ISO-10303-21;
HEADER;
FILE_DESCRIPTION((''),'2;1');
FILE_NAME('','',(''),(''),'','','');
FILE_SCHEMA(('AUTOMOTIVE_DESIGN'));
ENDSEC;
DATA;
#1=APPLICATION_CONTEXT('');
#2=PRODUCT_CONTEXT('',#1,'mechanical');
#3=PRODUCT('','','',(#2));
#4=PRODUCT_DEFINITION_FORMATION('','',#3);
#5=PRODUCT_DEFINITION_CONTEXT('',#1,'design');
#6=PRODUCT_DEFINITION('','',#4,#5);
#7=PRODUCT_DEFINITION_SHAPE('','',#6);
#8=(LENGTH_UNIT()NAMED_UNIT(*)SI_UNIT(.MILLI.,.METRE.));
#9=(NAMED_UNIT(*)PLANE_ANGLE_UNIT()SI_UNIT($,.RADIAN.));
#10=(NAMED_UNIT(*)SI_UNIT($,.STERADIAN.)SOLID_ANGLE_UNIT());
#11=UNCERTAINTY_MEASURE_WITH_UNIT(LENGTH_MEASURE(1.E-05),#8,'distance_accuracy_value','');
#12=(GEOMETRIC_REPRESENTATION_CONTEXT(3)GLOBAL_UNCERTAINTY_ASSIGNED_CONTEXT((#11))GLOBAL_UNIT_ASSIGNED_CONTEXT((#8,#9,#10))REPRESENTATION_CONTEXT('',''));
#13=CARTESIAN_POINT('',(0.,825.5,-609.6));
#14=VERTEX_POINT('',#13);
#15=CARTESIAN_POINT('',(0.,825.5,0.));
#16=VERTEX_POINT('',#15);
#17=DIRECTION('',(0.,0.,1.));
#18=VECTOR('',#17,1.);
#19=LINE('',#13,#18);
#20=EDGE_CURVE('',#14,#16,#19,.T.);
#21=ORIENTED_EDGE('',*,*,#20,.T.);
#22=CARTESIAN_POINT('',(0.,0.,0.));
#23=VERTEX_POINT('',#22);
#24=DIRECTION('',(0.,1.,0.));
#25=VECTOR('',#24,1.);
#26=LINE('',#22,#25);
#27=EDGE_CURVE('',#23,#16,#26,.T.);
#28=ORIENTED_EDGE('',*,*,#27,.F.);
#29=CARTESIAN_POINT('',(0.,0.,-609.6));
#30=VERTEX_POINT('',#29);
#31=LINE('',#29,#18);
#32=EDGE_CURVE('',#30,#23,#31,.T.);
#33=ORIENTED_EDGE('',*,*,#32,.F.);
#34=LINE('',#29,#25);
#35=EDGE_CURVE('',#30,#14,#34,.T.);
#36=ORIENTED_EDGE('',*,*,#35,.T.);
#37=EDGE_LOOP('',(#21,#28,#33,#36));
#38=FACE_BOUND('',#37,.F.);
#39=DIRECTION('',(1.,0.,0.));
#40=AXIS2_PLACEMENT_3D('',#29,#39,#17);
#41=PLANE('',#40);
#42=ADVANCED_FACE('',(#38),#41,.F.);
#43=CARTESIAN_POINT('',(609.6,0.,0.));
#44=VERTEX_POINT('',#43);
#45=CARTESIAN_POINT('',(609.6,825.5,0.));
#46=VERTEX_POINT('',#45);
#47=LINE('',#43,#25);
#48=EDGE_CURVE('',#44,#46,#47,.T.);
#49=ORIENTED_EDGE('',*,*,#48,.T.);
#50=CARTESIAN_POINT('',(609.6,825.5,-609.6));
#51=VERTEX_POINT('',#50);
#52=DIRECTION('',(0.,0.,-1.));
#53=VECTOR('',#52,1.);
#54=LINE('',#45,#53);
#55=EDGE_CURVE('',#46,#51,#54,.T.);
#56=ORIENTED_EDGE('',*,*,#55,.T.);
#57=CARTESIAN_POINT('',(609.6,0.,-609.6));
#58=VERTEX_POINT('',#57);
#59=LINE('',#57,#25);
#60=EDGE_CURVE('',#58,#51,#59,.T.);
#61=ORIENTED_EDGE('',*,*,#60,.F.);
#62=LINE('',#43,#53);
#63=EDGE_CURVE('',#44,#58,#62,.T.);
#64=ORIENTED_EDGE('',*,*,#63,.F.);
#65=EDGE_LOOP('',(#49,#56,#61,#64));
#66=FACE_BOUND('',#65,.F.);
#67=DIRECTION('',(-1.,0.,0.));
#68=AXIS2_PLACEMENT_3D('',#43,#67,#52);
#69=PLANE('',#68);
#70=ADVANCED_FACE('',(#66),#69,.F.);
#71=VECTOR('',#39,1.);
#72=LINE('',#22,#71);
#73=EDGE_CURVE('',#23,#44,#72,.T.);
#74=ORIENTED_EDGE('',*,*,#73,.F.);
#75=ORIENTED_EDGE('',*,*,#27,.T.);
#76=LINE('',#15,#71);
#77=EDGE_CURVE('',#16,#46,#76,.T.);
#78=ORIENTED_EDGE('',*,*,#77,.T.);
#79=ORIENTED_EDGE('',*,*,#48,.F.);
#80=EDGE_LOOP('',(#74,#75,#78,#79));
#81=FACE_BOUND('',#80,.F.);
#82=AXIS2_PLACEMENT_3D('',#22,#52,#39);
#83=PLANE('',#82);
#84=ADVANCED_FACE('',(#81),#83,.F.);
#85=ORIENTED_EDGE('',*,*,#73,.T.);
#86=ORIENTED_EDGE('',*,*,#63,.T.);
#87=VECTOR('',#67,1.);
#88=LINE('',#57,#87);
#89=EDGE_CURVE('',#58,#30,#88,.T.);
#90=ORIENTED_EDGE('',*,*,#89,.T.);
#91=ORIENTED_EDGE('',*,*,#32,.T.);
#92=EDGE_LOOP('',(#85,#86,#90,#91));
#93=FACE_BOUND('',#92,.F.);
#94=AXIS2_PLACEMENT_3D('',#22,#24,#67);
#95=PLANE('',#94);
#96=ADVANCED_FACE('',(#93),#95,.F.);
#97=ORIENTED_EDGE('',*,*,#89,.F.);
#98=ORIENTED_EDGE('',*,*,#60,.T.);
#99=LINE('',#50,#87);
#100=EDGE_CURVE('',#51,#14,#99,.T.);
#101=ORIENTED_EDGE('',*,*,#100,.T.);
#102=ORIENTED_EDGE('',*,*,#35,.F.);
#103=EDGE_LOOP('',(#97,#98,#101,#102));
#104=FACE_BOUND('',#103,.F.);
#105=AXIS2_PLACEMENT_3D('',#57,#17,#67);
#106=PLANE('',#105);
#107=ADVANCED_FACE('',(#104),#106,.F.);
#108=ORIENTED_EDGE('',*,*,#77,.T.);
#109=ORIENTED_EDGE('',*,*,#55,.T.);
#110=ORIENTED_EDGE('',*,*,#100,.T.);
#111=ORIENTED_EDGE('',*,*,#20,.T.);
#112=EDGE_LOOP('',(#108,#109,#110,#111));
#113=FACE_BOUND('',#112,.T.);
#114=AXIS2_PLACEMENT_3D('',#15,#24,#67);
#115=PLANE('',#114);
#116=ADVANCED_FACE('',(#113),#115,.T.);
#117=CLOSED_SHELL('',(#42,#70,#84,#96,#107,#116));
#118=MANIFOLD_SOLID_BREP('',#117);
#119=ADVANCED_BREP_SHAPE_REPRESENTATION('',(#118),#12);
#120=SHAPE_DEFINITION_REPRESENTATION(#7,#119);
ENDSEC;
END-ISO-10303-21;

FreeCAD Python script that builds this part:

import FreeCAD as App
import Part
import Sketcher

V = App.Vector
Q = App.Units.Quantity


def add_polygon(sketch, points):
    """Adds a closed chain of lines whose ends are joined by coincident constraints."""
    first, n = sketch.GeometryCount, len(points)
    for a, b in zip(points, points[1:] + points[:1]):
        sketch.addGeometry(Part.LineSegment(App.Vector(*a, 0), App.Vector(*b, 0)), False)
    for i in range(n):
        sketch.addConstraint(Sketcher.Constraint("Coincident", first + i, 2, first + (i + 1) % n, 1))

doc = App.newDocument("Part")
body = doc.addObject("PartDesign::Body", "Body")

# Sketch on XZ plane
sketch1 = doc.addObject("Sketcher::SketchObject", "Sketch")
body.addObject(sketch1)
sketch1.AttachmentSupport = (doc.XZ_Plane, [""])
sketch1.MapMode = "FlatFace"
add_polygon(sketch1, [(0, -609.6), (0, 0), (609.6, 0), (609.6, -609.6)])  # lines 0-3
sketch1.addConstraint([
    Sketcher.Constraint("Vertical", 0),
    Sketcher.Constraint("Horizontal", 1),
    Sketcher.Constraint("Vertical", 2),
    Sketcher.Constraint("Horizontal", 3),
    Sketcher.Constraint("Coincident", 0, 2, -1, 1),
    Sketcher.Constraint("Equal", 3, 0),
    Sketcher.Constraint("DistanceX", 1, 1, 1, 2, Q("24 in")),
])
pad1 = doc.addObject("PartDesign::Pad", "Pad")
body.addObject(pad1)
pad1.Profile = sketch1
pad1.Length = Q("32.5 in")
pad1.Reversed = True

doc.recompute()
